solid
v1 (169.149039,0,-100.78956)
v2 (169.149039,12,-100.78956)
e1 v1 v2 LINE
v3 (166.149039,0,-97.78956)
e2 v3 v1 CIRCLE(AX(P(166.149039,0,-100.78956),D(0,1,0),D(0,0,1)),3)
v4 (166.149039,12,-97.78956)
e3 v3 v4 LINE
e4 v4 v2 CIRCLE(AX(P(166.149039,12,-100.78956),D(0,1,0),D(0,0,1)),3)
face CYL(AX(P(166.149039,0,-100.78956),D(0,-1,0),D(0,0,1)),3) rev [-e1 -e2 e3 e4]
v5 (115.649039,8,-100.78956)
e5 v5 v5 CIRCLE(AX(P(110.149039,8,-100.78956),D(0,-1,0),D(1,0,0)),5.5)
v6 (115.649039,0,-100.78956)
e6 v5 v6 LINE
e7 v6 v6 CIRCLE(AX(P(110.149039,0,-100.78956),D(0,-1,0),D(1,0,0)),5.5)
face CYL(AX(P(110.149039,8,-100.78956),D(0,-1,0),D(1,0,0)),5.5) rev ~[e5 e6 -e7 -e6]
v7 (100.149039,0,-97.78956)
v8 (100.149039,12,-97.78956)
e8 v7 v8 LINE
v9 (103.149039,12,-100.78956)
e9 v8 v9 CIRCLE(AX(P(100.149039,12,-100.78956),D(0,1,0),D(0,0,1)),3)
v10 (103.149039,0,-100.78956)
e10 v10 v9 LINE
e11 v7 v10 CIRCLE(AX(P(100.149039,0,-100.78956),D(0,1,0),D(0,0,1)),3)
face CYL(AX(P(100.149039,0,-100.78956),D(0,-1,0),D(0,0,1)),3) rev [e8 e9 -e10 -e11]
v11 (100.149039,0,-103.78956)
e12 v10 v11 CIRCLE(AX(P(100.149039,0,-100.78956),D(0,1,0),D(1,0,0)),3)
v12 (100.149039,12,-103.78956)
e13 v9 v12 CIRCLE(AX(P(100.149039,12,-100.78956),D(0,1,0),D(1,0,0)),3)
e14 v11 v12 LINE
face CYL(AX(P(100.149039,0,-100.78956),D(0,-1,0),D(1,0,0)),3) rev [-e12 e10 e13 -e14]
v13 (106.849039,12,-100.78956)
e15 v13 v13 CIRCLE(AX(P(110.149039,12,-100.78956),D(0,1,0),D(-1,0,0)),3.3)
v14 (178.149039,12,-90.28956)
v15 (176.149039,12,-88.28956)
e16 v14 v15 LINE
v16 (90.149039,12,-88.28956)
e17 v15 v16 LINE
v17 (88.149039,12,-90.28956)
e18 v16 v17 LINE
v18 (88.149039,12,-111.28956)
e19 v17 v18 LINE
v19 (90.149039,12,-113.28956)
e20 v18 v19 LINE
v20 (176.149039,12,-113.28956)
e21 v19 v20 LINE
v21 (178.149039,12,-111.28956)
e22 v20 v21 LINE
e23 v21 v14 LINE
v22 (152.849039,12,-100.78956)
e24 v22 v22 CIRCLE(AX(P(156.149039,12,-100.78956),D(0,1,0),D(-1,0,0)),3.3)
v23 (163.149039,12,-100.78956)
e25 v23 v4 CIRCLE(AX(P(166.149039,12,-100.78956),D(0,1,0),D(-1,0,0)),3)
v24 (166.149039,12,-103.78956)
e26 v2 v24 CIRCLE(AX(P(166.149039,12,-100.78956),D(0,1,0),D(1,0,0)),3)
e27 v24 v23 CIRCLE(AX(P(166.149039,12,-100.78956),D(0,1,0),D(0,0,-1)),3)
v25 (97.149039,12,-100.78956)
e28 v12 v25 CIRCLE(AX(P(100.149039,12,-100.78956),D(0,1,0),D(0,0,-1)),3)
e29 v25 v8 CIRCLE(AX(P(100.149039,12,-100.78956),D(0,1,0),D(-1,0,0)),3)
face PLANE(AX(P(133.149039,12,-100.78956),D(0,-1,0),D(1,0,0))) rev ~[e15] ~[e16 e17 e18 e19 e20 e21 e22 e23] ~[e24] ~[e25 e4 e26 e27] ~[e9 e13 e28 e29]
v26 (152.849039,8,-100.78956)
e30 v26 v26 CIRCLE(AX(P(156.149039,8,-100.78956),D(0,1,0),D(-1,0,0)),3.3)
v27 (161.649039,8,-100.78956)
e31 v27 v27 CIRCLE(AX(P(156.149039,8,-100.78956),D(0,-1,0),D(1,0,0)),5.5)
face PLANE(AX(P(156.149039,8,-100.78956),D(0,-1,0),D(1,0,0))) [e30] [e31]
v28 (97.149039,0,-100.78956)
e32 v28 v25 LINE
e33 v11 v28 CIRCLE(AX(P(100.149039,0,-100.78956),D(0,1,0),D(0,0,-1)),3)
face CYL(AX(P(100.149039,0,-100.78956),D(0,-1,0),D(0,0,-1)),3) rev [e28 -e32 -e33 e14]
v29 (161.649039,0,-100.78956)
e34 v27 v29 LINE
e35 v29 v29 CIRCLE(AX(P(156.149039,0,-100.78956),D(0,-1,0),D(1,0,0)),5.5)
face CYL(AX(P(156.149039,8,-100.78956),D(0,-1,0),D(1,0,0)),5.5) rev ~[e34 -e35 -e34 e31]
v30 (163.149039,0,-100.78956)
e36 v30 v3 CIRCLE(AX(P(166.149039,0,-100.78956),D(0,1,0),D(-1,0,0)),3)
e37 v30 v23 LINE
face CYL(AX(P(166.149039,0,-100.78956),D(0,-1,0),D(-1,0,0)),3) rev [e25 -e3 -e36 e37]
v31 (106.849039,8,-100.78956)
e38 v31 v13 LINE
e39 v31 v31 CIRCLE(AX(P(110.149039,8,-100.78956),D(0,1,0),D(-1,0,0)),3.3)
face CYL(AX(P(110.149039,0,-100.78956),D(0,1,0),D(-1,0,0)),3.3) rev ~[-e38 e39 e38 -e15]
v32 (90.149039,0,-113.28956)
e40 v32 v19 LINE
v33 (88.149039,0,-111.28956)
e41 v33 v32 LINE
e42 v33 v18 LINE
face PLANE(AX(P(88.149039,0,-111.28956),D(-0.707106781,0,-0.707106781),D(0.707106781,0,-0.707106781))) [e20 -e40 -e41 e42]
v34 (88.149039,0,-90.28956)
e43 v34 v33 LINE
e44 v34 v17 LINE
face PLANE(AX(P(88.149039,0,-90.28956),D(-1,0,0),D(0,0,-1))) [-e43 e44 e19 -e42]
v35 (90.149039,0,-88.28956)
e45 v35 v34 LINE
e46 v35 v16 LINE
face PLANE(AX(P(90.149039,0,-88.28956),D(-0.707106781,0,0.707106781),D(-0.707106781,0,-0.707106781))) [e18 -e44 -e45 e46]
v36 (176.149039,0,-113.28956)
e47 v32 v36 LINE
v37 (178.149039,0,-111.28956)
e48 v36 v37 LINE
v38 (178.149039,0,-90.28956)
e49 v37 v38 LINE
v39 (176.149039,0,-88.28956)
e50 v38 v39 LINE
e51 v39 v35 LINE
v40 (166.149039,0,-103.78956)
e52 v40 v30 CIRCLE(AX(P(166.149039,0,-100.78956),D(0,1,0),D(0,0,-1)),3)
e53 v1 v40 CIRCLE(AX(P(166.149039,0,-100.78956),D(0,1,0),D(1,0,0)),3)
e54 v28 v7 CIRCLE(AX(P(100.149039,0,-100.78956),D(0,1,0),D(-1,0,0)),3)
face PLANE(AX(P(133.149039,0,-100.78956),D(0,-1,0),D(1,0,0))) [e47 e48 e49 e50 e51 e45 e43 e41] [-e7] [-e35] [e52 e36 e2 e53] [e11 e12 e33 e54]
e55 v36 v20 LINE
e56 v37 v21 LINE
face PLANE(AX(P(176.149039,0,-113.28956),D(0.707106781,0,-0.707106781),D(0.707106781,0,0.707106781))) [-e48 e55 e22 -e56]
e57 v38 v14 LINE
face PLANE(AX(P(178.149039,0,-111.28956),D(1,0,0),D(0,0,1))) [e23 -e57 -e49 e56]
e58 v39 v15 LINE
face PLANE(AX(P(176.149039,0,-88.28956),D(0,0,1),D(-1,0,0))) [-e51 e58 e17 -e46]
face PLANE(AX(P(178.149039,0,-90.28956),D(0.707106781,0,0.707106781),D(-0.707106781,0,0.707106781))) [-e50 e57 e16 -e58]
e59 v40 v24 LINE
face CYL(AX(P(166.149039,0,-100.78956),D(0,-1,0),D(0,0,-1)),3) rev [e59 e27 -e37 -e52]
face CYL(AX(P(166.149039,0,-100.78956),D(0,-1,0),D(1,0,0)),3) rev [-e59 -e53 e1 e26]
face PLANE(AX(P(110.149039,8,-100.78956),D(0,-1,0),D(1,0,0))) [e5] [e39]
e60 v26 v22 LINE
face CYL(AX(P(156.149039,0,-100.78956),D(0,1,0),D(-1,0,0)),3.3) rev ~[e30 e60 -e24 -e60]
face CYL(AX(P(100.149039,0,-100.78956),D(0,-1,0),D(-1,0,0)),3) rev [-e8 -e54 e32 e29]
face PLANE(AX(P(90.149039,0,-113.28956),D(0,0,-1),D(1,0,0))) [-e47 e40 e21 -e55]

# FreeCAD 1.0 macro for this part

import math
import FreeCAD as App
import Part
import Sketcher
Q = App.Units.Quantity

doc = App.newDocument("Part")
params = doc.addObject("Spreadsheet::Sheet", "Params")
for row, (alias, value) in enumerate([
    ("sketch1_radius", "3 mm"),
    ("sketch1_width", "86 mm"),
    ("sketch1_height", "21 mm"),
    ("pad1_length", "12 mm"),
    ("sketch2_diameter", "6.6 mm"),
    ("hole_diameter", "6.6 mm"),
    ("hole_cbore_diameter", "11 mm"),
    ("hole_cbore_depth", "8 mm"),
], start=1):
    params.set(f"A{row}", alias)
    params.set(f"B{row}", "=" + value)
    params.setAlias(f"B{row}", alias)

body = doc.addObject("PartDesign::Body", "Body")

# Sketch on XZ plane
sketch1 = doc.addObject("Sketcher::SketchObject", "Sketch")
body.addObject(sketch1)
sketch1.AttachmentSupport = (doc.XZ_Plane, [""])
sketch1.MapMode = "FlatFace"
sketch1.addGeometry([
    Part.LineSegment(App.Vector(90.1, -88.3, 0), App.Vector(88.1, -90.3, 0)),  # 0
    Part.LineSegment(App.Vector(88.1, -90.3, 0), App.Vector(88.1, -111.3, 0)),  # 1
    Part.LineSegment(App.Vector(88.1, -111.3, 0), App.Vector(90.1, -113.3, 0)),  # 2
    Part.LineSegment(App.Vector(90.1, -113.3, 0), App.Vector(176.1, -113.3, 0)),  # 3
    Part.LineSegment(App.Vector(176.1, -113.3, 0), App.Vector(178.1, -111.3, 0)),  # 4
    Part.LineSegment(App.Vector(178.1, -111.3, 0), App.Vector(178.1, -90.3, 0)),  # 5
    Part.LineSegment(App.Vector(178.1, -90.3, 0), App.Vector(176.1, -88.3, 0)),  # 6
    Part.LineSegment(App.Vector(176.1, -88.3, 0), App.Vector(90.1, -88.3, 0)),  # 7
    Part.ArcOfCircle(Part.Circle(App.Vector(100.1, -100.8, 0), App.Vector(0, 0, 1), 3), math.radians(90), math.radians(180)),  # 8
    Part.ArcOfCircle(Part.Circle(App.Vector(100.1, -100.8, 0), App.Vector(0, 0, 1), 3), math.radians(0), math.radians(90)),  # 9
    Part.ArcOfCircle(Part.Circle(App.Vector(100.1, -100.8, 0), App.Vector(0, 0, 1), 3), math.radians(-90), math.radians(0)),  # 10
    Part.ArcOfCircle(Part.Circle(App.Vector(100.1, -100.8, 0), App.Vector(0, 0, 1), 3), math.radians(180), math.radians(270)),  # 11
    Part.ArcOfCircle(Part.Circle(App.Vector(166.1, -100.8, 0), App.Vector(0, 0, 1), 3), math.radians(90), math.radians(180)),  # 12
    Part.ArcOfCircle(Part.Circle(App.Vector(166.1, -100.8, 0), App.Vector(0, 0, 1), 3), math.radians(0), math.radians(90)),  # 13
    Part.ArcOfCircle(Part.Circle(App.Vector(166.1, -100.8, 0), App.Vector(0, 0, 1), 3), math.radians(-90), math.radians(0)),  # 14
    Part.ArcOfCircle(Part.Circle(App.Vector(166.1, -100.8, 0), App.Vector(0, 0, 1), 3), math.radians(180), math.radians(270)),  # 15
], False)
sketch1.addConstraint([
    Sketcher.Constraint("Coincident", 0, 2, 1, 1),
    Sketcher.Constraint("Coincident", 1, 2, 2, 1),
    Sketcher.Constraint("Coincident", 2, 2, 3, 1),
    Sketcher.Constraint("Coincident", 3, 2, 4, 1),
    Sketcher.Constraint("Coincident", 4, 2, 5, 1),
    Sketcher.Constraint("Coincident", 5, 2, 6, 1),
    Sketcher.Constraint("Coincident", 6, 2, 7, 1),
    Sketcher.Constraint("Coincident", 7, 2, 0, 1),
    Sketcher.Constraint("Tangent", 8, 1, 9, 2),
    Sketcher.Constraint("Tangent", 9, 1, 10, 2),
    Sketcher.Constraint("Tangent", 10, 1, 11, 2),
    Sketcher.Constraint("Tangent", 11, 1, 8, 2),
    Sketcher.Constraint("Tangent", 12, 1, 13, 2),
    Sketcher.Constraint("Tangent", 13, 1, 14, 2),
    Sketcher.Constraint("Tangent", 14, 1, 15, 2),
    Sketcher.Constraint("Tangent", 15, 1, 12, 2),
    Sketcher.Constraint("Vertical", 1),
    Sketcher.Constraint("Horizontal", 3),
    Sketcher.Constraint("Vertical", 5),
    Sketcher.Constraint("Horizontal", 7),
    Sketcher.Constraint("Equal", 8, 9),
    Sketcher.Constraint("Equal", 11, 12),
    Sketcher.Constraint("Equal", 12, 13),
    Sketcher.Constraint("Perpendicular", 0, 2),
    Sketcher.Constraint("Perpendicular", 2, 4),
    Sketcher.Constraint("Perpendicular", 4, 6),
    Sketcher.Constraint("Horizontal", 11, 3, 12, 3),
    Sketcher.Constraint("Horizontal", 1, 2, 4, 2),
    Sketcher.Constraint("Horizontal", 0, 2, 5, 2),
    Sketcher.Constraint("Horizontal", 15, 3, 9, 1),
    Sketcher.Constraint("Horizontal", 9, 1, 11, 1),
    Sketcher.Constraint("Horizontal", 11, 1, 13, 1),
    Sketcher.Constraint("Horizontal", 13, 1, 15, 1),
    Sketcher.Constraint("Vertical", 3, 2, 6, 2),
    Sketcher.Constraint("Vertical", 2, 2, 7, 2),
    Sketcher.Constraint("Vertical", 11, 3, 8, 1),
    Sketcher.Constraint("Vertical", 8, 1, 10, 1),
    Sketcher.Constraint("Vertical", 15, 3, 12, 1),
    Sketcher.Constraint("Vertical", 12, 1, 14, 1),
    Sketcher.Constraint("Radius", 8, Q("3 mm")),
    Sketcher.Constraint("DistanceX", 3, 1, 3, 2, Q("86 mm")),
    Sketcher.Constraint("DistanceY", 1, 2, 1, 1, Q("21 mm")),
    Sketcher.Constraint("DistanceX", 8, 3, 12, 3, Q("66 mm")),
    Sketcher.Constraint("DistanceX", 0, 2, 8, 3, Q("12 mm")),
    Sketcher.Constraint("DistanceX", 1, 2, 2, 2, Q("2 mm")),
    Sketcher.Constraint("DistanceY", 8, 3, 0, 2, Q("10.5 mm")),
    Sketcher.Constraint("DistanceX", -1, 1, 8, 3, Q("100.149039 mm")),
    Sketcher.Constraint("DistanceY", 8, 3, -1, 1, Q("100.78956 mm")),
])
sketch1.setExpression("Constraints[39]", "Params.sketch1_radius")
sketch1.setExpression("Constraints[40]", "Params.sketch1_width")
sketch1.setExpression("Constraints[41]", "Params.sketch1_height")
pad1 = doc.addObject("PartDesign::Pad", "Pad")
body.addObject(pad1)
pad1.Profile = sketch1
pad1.setExpression("Length", "Params.pad1_length")
pad1.Reversed = True

# Sketch on XZ plane
sketch2 = doc.addObject("Sketcher::SketchObject", "Sketch001")
body.addObject(sketch2)
sketch2.AttachmentSupport = (doc.XZ_Plane, [""])
sketch2.MapMode = "FlatFace"
sketch2.addGeometry([
    Part.Circle(App.Vector(156.1, -100.8, 0), App.Vector(0, 0, 1), 3.3),
    Part.Circle(App.Vector(110.1, -100.8, 0), App.Vector(0, 0, 1), 3.3),
], False)
sketch2.addConstraint([
    Sketcher.Constraint("Equal", 0, 1),
    Sketcher.Constraint("Horizontal", 0, 3, 1, 3),
    Sketcher.Constraint("Diameter", 0, Q("6.6 mm")),
    Sketcher.Constraint("DistanceX", 1, 3, 0, 3, Q("46 mm")),
    Sketcher.Constraint("DistanceX", -1, 1, 0, 3, Q("156.149039 mm")),
    Sketcher.Constraint("DistanceY", 0, 3, -1, 1, Q("100.78956 mm")),
])
sketch2.setExpression("Constraints[2]", "Params.sketch2_diameter")
doc.recompute()
hole = doc.addObject("PartDesign::Hole", "Hole")
body.addObject(hole)
hole.Profile = sketch2
hole.ThreadType = "None"
hole.setExpression("Diameter", "Params.hole_diameter")
hole.DepthType = "ThroughAll"
hole.HoleCutType = "Counterbore"
hole.setExpression("HoleCutDiameter", "Params.hole_cbore_diameter")
hole.setExpression("HoleCutDepth", "Params.hole_cbore_depth")

doc.recompute()
